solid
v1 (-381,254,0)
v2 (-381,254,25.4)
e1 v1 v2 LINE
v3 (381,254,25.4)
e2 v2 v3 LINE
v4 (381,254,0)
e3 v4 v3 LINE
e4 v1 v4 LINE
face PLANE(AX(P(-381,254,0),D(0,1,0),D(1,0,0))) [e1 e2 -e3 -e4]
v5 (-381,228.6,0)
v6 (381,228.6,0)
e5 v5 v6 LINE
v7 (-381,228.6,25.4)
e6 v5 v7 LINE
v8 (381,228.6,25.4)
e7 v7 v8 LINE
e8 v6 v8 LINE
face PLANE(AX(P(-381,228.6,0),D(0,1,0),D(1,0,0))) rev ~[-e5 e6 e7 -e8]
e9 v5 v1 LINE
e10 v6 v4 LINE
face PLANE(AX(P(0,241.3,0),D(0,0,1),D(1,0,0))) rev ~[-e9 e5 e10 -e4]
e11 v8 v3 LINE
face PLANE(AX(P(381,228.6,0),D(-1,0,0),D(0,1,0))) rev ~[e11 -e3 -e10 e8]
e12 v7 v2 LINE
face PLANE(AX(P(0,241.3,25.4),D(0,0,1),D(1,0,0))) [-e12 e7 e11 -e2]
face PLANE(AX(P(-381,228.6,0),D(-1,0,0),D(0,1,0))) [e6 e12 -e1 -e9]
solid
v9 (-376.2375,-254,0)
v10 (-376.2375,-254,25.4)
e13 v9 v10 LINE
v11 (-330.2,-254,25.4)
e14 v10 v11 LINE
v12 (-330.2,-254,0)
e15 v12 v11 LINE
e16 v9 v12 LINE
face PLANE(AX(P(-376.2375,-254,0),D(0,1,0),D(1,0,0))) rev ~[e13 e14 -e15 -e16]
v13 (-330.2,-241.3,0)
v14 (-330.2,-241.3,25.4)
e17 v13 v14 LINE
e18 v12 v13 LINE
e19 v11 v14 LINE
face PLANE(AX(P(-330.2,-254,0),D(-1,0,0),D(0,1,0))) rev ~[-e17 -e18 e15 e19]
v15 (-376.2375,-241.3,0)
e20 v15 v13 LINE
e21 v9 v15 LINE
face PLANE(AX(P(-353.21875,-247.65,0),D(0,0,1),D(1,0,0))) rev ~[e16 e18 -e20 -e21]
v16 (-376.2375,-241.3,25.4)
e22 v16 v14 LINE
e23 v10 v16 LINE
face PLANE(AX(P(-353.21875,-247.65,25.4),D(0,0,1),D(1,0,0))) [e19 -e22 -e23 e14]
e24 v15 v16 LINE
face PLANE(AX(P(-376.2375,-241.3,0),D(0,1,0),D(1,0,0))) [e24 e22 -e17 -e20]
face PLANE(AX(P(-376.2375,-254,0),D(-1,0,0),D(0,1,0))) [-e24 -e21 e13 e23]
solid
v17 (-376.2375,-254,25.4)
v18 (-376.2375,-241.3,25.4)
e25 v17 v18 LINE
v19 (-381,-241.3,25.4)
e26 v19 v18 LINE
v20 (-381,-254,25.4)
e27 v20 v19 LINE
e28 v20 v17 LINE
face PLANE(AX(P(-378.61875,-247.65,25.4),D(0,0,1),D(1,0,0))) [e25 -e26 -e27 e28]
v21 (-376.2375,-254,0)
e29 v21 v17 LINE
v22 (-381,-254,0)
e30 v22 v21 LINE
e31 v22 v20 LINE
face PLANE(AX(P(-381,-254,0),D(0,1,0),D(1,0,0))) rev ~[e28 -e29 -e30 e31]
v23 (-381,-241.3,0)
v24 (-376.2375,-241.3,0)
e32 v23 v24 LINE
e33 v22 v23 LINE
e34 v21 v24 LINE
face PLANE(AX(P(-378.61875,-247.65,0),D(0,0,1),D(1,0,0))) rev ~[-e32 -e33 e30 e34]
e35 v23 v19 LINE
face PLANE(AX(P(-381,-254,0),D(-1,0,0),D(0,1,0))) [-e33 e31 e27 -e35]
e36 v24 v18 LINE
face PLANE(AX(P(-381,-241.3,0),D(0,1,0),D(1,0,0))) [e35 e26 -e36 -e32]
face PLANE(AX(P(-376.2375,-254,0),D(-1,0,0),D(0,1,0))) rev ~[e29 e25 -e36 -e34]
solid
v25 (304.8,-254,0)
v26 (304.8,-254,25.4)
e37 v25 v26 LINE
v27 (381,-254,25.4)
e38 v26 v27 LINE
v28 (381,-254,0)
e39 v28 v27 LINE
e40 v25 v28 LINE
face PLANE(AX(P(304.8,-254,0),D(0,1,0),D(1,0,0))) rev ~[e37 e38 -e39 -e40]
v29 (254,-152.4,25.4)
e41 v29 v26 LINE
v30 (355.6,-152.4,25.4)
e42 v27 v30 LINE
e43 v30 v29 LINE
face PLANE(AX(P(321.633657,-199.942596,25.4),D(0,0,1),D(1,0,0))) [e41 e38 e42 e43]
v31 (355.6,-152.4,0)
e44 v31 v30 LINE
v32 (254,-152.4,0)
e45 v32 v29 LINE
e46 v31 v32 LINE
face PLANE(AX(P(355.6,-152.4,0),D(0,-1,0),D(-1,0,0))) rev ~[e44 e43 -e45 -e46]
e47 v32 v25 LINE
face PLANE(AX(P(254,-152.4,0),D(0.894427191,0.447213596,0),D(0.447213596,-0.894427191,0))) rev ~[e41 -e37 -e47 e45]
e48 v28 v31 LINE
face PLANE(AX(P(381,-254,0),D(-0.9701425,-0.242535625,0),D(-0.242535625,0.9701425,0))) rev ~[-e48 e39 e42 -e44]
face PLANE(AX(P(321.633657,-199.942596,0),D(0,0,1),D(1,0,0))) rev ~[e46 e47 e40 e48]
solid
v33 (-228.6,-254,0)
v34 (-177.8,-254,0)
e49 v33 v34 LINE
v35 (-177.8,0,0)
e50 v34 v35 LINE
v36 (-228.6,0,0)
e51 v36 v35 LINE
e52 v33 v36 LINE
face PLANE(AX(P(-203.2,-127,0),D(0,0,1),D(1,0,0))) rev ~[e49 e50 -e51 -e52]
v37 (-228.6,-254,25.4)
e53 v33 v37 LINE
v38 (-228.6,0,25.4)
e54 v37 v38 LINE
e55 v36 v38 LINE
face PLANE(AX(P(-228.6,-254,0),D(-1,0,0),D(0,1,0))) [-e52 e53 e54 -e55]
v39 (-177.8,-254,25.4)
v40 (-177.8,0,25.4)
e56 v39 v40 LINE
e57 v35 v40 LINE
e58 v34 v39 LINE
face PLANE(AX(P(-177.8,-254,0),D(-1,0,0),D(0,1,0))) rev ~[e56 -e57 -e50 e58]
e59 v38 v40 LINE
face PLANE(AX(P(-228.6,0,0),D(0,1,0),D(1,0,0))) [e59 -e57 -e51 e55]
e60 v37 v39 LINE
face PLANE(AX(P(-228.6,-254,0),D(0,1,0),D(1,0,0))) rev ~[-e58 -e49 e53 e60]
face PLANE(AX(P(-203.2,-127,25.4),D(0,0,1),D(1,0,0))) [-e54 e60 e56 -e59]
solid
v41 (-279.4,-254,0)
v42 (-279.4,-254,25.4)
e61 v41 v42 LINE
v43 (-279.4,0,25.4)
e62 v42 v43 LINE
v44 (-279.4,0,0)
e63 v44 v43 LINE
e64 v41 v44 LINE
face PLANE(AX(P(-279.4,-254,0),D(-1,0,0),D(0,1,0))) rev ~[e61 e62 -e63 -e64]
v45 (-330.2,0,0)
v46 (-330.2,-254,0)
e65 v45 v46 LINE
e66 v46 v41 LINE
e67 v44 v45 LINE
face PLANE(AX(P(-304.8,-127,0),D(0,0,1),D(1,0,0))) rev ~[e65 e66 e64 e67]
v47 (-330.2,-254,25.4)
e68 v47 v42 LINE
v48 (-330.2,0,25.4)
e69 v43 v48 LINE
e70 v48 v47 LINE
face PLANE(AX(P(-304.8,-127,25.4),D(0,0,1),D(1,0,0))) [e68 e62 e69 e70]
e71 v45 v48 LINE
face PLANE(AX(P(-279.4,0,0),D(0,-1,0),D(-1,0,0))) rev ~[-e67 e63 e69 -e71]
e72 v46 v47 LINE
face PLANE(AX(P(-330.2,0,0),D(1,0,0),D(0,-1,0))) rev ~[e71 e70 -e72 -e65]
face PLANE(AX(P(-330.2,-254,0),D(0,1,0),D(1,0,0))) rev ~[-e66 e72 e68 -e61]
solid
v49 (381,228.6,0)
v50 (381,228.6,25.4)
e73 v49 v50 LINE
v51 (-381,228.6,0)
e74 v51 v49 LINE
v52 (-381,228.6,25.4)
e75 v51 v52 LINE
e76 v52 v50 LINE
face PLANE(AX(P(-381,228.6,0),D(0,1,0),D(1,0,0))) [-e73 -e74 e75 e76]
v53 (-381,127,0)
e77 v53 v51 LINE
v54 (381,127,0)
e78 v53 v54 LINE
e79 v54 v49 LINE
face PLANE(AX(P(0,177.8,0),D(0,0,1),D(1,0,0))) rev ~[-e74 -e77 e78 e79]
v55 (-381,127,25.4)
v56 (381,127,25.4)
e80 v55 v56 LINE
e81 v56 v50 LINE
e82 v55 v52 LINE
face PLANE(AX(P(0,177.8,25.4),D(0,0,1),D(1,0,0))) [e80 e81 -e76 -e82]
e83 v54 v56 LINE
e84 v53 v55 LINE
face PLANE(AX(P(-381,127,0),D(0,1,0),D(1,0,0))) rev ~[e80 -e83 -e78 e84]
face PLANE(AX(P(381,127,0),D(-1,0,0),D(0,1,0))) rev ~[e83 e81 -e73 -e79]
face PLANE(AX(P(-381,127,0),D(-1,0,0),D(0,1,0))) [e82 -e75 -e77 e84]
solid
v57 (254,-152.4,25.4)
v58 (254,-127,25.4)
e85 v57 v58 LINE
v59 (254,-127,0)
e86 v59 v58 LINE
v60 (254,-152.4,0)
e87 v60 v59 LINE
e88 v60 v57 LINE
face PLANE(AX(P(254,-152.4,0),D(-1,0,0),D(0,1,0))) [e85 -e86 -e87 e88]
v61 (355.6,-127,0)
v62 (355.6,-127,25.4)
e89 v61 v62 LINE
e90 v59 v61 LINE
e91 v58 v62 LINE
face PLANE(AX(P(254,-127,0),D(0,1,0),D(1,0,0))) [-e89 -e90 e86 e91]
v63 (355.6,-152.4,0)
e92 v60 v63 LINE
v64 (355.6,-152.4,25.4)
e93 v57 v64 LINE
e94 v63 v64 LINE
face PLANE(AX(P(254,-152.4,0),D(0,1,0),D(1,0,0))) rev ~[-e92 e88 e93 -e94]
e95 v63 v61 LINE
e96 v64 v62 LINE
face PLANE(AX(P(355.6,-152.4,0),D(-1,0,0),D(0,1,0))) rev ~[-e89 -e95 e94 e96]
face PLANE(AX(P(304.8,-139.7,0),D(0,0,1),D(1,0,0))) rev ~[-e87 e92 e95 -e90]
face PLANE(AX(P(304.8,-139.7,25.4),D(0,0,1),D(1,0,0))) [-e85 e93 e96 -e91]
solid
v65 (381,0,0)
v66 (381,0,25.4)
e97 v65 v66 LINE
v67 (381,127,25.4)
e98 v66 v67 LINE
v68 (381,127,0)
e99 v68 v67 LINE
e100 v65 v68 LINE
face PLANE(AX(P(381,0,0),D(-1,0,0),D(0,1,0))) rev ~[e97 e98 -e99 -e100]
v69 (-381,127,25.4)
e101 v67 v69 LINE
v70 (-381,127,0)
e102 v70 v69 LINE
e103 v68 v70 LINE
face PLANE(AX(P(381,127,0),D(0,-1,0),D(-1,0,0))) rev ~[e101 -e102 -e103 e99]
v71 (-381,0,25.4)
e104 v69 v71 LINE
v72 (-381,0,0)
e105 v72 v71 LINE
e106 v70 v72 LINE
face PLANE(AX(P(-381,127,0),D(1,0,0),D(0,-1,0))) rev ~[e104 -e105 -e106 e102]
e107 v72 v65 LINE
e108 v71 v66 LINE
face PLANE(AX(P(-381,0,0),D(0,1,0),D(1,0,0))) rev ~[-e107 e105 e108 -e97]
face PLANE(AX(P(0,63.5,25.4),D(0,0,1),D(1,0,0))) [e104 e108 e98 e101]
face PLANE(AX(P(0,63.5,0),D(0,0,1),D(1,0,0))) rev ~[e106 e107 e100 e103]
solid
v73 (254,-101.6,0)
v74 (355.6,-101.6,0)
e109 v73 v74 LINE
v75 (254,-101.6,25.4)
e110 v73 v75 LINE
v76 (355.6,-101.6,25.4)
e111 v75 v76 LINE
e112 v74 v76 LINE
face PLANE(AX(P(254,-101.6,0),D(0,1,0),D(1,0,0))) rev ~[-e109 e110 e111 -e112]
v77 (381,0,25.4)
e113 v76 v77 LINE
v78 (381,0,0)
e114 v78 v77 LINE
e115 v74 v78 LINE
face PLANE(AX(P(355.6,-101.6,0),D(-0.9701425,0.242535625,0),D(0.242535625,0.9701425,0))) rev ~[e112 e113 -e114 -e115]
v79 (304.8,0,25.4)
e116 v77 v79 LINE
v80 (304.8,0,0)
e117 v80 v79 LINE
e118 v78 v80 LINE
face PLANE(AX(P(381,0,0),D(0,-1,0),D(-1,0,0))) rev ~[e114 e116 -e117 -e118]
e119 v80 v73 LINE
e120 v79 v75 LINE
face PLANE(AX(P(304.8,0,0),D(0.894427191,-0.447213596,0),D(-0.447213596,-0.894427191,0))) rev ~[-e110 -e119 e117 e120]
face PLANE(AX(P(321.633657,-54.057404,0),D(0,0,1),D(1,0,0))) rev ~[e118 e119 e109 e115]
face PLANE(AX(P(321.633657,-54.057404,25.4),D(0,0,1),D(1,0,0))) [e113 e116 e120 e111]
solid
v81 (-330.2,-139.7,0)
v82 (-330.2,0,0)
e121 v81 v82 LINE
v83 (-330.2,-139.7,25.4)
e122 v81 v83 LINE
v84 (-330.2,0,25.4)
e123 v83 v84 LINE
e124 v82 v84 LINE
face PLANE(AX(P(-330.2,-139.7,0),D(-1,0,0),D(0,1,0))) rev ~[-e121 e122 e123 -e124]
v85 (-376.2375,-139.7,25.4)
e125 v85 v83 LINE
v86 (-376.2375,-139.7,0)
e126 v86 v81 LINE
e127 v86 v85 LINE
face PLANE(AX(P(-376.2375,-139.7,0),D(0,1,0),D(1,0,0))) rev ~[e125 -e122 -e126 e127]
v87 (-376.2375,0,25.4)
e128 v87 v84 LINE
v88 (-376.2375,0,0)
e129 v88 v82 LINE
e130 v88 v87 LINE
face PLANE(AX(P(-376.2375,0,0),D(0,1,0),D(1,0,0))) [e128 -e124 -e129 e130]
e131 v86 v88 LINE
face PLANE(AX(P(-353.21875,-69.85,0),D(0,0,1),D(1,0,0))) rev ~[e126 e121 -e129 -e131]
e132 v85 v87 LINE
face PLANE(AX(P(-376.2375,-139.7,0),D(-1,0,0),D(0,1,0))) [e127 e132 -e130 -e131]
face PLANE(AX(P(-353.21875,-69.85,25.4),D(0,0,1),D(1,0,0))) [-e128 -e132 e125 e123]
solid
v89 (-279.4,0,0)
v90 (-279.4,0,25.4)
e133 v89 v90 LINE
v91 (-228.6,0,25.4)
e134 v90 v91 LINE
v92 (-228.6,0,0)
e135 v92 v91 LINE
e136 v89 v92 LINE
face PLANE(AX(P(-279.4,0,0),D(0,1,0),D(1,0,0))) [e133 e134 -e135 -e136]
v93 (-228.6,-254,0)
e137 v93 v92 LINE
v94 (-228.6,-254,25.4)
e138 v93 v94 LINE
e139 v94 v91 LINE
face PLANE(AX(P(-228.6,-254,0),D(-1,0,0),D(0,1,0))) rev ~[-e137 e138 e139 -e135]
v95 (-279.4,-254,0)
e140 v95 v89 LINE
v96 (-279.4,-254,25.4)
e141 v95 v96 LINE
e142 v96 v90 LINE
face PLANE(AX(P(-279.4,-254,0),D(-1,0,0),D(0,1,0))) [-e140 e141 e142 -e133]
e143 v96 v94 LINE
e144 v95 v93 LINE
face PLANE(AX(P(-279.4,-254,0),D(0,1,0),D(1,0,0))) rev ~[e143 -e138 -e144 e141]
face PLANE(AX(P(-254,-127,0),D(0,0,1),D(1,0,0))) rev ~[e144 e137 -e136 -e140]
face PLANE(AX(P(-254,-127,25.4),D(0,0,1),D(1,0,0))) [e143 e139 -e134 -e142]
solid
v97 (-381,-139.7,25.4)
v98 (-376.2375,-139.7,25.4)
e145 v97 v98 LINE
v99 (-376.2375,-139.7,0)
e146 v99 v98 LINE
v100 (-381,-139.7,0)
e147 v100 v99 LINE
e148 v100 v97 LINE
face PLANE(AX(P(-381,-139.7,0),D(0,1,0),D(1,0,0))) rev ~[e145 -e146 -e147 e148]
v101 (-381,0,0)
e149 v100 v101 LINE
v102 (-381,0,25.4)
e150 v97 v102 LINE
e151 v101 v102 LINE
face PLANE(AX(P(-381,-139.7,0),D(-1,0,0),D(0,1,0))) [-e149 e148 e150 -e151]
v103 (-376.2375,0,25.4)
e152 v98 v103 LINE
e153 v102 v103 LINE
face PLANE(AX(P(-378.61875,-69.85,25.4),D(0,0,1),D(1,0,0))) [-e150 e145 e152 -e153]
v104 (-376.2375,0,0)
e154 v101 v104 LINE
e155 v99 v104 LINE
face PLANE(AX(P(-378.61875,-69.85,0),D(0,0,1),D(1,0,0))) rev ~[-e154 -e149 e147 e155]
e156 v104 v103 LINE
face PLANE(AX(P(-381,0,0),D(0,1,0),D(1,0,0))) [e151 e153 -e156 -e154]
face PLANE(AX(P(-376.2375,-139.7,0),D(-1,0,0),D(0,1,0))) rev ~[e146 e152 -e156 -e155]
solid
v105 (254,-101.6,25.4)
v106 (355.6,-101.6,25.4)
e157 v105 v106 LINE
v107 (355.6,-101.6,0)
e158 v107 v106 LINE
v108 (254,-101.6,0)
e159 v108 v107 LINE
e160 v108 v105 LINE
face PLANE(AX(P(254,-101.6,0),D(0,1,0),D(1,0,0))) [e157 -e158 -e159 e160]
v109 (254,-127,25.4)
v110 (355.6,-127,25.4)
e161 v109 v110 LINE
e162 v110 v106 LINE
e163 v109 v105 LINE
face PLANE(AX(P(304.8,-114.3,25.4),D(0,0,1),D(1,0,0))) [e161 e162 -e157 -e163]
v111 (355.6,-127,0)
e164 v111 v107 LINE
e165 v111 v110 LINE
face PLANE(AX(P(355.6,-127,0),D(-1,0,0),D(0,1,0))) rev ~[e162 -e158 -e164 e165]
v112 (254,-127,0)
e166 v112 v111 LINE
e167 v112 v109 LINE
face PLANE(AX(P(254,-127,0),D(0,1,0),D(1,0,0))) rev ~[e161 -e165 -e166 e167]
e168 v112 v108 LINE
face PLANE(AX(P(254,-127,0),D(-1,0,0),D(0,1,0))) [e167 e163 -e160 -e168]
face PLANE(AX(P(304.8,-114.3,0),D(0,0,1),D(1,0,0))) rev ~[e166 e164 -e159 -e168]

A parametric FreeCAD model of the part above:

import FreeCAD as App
import Part
import Sketcher

V = App.Vector
Q = App.Units.Quantity


def add_polygon(sketch, points):
    """Adds a closed chain of lines whose ends are joined by coincident constraints."""
    first, n = sketch.GeometryCount, len(points)
    for a, b in zip(points, points[1:] + points[:1]):
        sketch.addGeometry(Part.LineSegment(App.Vector(*a, 0), App.Vector(*b, 0)), False)
    for i in range(n):
        sketch.addConstraint(Sketcher.Constraint("Coincident", first + i, 2, first + (i + 1) % n, 1))

doc = App.newDocument("Part")
params = doc.addObject("Spreadsheet::Sheet", "Params")
for row, (alias, value) in enumerate([
    ("sketch1_width", "3 in"),
    ("sketch1_width2", "4 in"),
    ("sketch1_width3", "30 in"),
    ("sketch1_height", "1 in"),
    ("sketch1_height2", "5 in"),
    ("pad1_length", "1 in"),
    ("sketch2_width", "3 in"),
    ("sketch2_width2", "4 in"),
    ("sketch2_width3", "30 in"),
    ("sketch2_width4", "2 in"),
    ("sketch2_height", "10 in"),
    ("pad2_length", "1 in"),
    ("sketch3_width", "2 in"),
    ("sketch3_height", "10 in"),
    ("sketch3_height2", "5.5 in"),
    ("sketch3_width2", "1.8125 in"),
    ("pad3_length", "1 in"),
], start=1):
    params.set(f"A{row}", alias)
    params.set(f"B{row}", "=" + value)
    params.setAlias(f"B{row}", alias)

body = doc.addObject("PartDesign::Body", "Body")
body.AllowCompound = True

# Sketch on XY plane
sketch1 = doc.addObject("Sketcher::SketchObject", "Sketch")
body.addObject(sketch1)
sketch1.AttachmentSupport = (doc.XY_Plane, [""])
sketch1.MapMode = "FlatFace"
add_polygon(sketch1, [(304.8, -254), (381, -254), (355.6, -152.4), (254, -152.4)])  # lines 0-3
add_polygon(sketch1, [(-381, 254), (-381, 228.6), (381, 228.6), (381, 254)])  # lines 4-7
add_polygon(sketch1, [(381, 127), (-381, 127), (-381, 0), (381, 0)])  # lines 8-11
add_polygon(sketch1, [(254, -101.6), (254, -127), (355.6, -127), (355.6, -101.6)])  # lines 12-15
add_polygon(sketch1, [(-376.2375, -241.3), (-376.2375, -254), (-330.2, -254), (-330.2, -241.3)])  # lines 16-19
sketch1.addConstraint([
    Sketcher.Constraint("Horizontal", 0),
    Sketcher.Constraint("Horizontal", 2),
    Sketcher.Constraint("Vertical", 4),
    Sketcher.Constraint("Horizontal", 5),
    Sketcher.Constraint("Vertical", 6),
    Sketcher.Constraint("Horizontal", 7),
    Sketcher.Constraint("Horizontal", 8),
    Sketcher.Constraint("Vertical", 9),
    Sketcher.Constraint("Horizontal", 10),
    Sketcher.Constraint("Vertical", 11),
    Sketcher.Constraint("Vertical", 12),
    Sketcher.Constraint("Horizontal", 13),
    Sketcher.Constraint("Vertical", 14),
    Sketcher.Constraint("Horizontal", 15),
    Sketcher.Constraint("Vertical", 16),
    Sketcher.Constraint("Horizontal", 17),
    Sketcher.Constraint("Vertical", 18),
    Sketcher.Constraint("Horizontal", 19),
    Sketcher.Constraint("Symmetric", 0, 2, 7, 2, -1, 1),
    Sketcher.Constraint("Symmetric", 9, 2, 10, 2, -1, 1),
    Sketcher.Constraint("Horizontal", 3, 2, 16, 2),
    Sketcher.Constraint("Vertical", 0, 2, 5, 2),
    Sketcher.Constraint("Vertical", 7, 2, 8, 2),
    Sketcher.Constraint("Vertical", 2, 2, 12, 2),
    Sketcher.Constraint("Vertical", 1, 2, 13, 2),
    Sketcher.Constraint("Equal", 6, 12),
    Sketcher.Constraint("DistanceX", 0, 1, 0, 2, Q("3 in")),
    Sketcher.Constraint("DistanceX", 2, 2, 2, 1, Q("4 in")),
    Sketcher.Constraint("DistanceX", 5, 1, 5, 2, Q("30 in")),
    Sketcher.Constraint("DistanceY", 4, 2, 4, 1, Q("1 in")),
    Sketcher.Constraint("DistanceY", 9, 2, 9, 1, Q("5 in")),
    Sketcher.Constraint("DistanceY", 16, 2, 16, 1, Q("0.5 in")),
    Sketcher.Constraint("DistanceY", 0, 2, -1, 1, Q("10 in")),
    Sketcher.Constraint("DistanceX", -1, 1, 1, 2, Q("14 in")),
    Sketcher.Constraint("DistanceY", 1, 2, -1, 1, Q("6 in")),
    Sketcher.Constraint("DistanceY", 12, 2, -1, 1, Q("5 in")),
    Sketcher.Constraint("DistanceX", 17, 2, -1, 1, Q("13 in")),
    Sketcher.Constraint("DistanceX", 17, 1, 17, 2, Q("1.8125 in")),
])
sketch1.setExpression("Constraints[46]", "Params.sketch1_width")
sketch1.setExpression("Constraints[47]", "Params.sketch1_width2")
sketch1.setExpression("Constraints[48]", "Params.sketch1_width3")
sketch1.setExpression("Constraints[49]", "Params.sketch1_height")
sketch1.setExpression("Constraints[50]", "Params.sketch1_height2")
pad1 = doc.addObject("PartDesign::Pad", "Pad")
body.addObject(pad1)
pad1.Profile = sketch1
pad1.setExpression("Length", "Params.pad1_length")
body2 = doc.addObject("PartDesign::Body", "Body001")
body2.AllowCompound = True

# Sketch on XY plane
sketch2 = doc.addObject("Sketcher::SketchObject", "Sketch001")
body2.addObject(sketch2)
sketch2.AttachmentSupport = (doc.getObject("XY_Plane001"), [""])
sketch2.MapMode = "FlatFace"
add_polygon(sketch2, [(355.6, -101.6), (381, 0), (304.8, 0), (254, -101.6)])  # lines 0-3
add_polygon(sketch2, [(-381, 228.6), (-381, 127), (381, 127), (381, 228.6)])  # lines 4-7
add_polygon(sketch2, [(-228.6, 0), (-228.6, -254), (-177.8, -254), (-177.8, 0)])  # lines 8-11
add_polygon(sketch2, [(-279.4, 0), (-330.2, 0), (-330.2, -254), (-279.4, -254)])  # lines 12-15
add_polygon(sketch2, [(-381, 0), (-381, -139.7), (-376.2375, -139.7), (-376.2375, 0)])  # lines 16-19
add_polygon(sketch2, [(-381, -241.3), (-381, -254), (-376.2375, -254), (-376.2375, -241.3)])  # lines 20-23
add_polygon(sketch2, [(254, -127), (254, -152.4), (355.6, -152.4), (355.6, -127)])  # lines 24-27
sketch2.addConstraint([
    Sketcher.Constraint("Horizontal", 1),
    Sketcher.Constraint("Horizontal", 3),
    Sketcher.Constraint("Vertical", 4),
    Sketcher.Constraint("Horizontal", 5),
    Sketcher.Constraint("Vertical", 6),
    Sketcher.Constraint("Horizontal", 7),
    Sketcher.Constraint("Vertical", 8),
    Sketcher.Constraint("Horizontal", 9),
    Sketcher.Constraint("Vertical", 10),
    Sketcher.Constraint("Horizontal", 11),
    Sketcher.Constraint("Horizontal", 12),
    Sketcher.Constraint("Vertical", 13),
    Sketcher.Constraint("Horizontal", 14),
    Sketcher.Constraint("Vertical", 15),
    Sketcher.Constraint("Vertical", 16),
    Sketcher.Constraint("Horizontal", 17),
    Sketcher.Constraint("Vertical", 18),
    Sketcher.Constraint("Horizontal", 19),
    Sketcher.Constraint("Vertical", 20),
    Sketcher.Constraint("Horizontal", 21),
    Sketcher.Constraint("Vertical", 22),
    Sketcher.Constraint("Horizontal", 23),
    Sketcher.Constraint("Vertical", 24),
    Sketcher.Constraint("Horizontal", 25),
    Sketcher.Constraint("Vertical", 26),
    Sketcher.Constraint("Horizontal", 27),
    Sketcher.Constraint("Symmetric", 0, 2, 19, 2, -1, 1),
    Sketcher.Constraint("PointOnObject", 0, 2, -1),
    Sketcher.Constraint("PointOnObject", 10, 2, -1),
    Sketcher.Constraint("PointOnObject", 12, 2, -1),
    Sketcher.Constraint("Horizontal", 9, 2, 13, 2),
    Sketcher.Constraint("Horizontal", 14, 2, 20, 2),
    Sketcher.Constraint("Vertical", 0, 2, 5, 2),
    Sketcher.Constraint("Vertical", 7, 2, 16, 2),
    Sketcher.Constraint("Vertical", 19, 2, 20, 2),
    Sketcher.Constraint("Vertical", 18, 2, 21, 2),
    Sketcher.Constraint("Vertical", 2, 2, 24, 2),
    Sketcher.Constraint("Vertical", 3, 2, 25, 2),
    Sketcher.Constraint("Equal", 11, 12),
    Sketcher.Constraint("Equal", 27, 4),
    Sketcher.Constraint("DistanceX", 1, 2, 1, 1, Q("3 in")),
    Sketcher.Constraint("DistanceX", 3, 1, 3, 2, Q("4 in")),
    Sketcher.Constraint("DistanceX", 5, 1, 5, 2, Q("30 in")),
    Sketcher.Constraint("DistanceX", 9, 1, 9, 2, Q("2 in")),
    Sketcher.Constraint("DistanceY", 8, 2, 8, 1, Q("10 in")),
    Sketcher.Constraint("DistanceY", 24, 2, 24, 1, Q("1 in")),
    Sketcher.Constraint("DistanceY", 16, 2, 16, 1, Q("5.5 in")),
    Sketcher.Constraint("DistanceY", 20, 2, 20, 1, Q("0.5 in")),
    Sketcher.Constraint("DistanceX", -1, 1, 2, 2, Q("10 in")),
    Sketcher.Constraint("DistanceY", 2, 2, -1, 1, Q("4 in")),
    Sketcher.Constraint("DistanceY", -1, 1, 4, 2, Q("5 in")),
    Sketcher.Constraint("DistanceX", 8, 2, -1, 1, Q("9 in")),
    Sketcher.Constraint("DistanceX", 12, 2, -1, 1, Q("13 in")),
    Sketcher.Constraint("DistanceY", 24, 2, -1, 1, Q("6 in")),
    Sketcher.Constraint("DistanceX", 17, 1, 17, 2, Q("0.1875 in")),
])
sketch2.setExpression("Constraints[68]", "Params.sketch2_width")
sketch2.setExpression("Constraints[69]", "Params.sketch2_width2")
sketch2.setExpression("Constraints[70]", "Params.sketch2_width3")
sketch2.setExpression("Constraints[71]", "Params.sketch2_width4")
sketch2.setExpression("Constraints[72]", "Params.sketch2_height")
pad2 = doc.addObject("PartDesign::Pad", "Pad001")
body2.addObject(pad2)
pad2.Profile = sketch2
pad2.setExpression("Length", "Params.pad2_length")
body3 = doc.addObject("PartDesign::Body", "Body002")
body3.AllowCompound = True

# Sketch on XY plane
sketch3 = doc.addObject("Sketcher::SketchObject", "Sketch002")
body3.addObject(sketch3)
sketch3.AttachmentSupport = (doc.getObject("XY_Plane002"), [""])
sketch3.MapMode = "FlatFace"
add_polygon(sketch3, [(-279.4, 0), (-279.4, -254), (-228.6, -254), (-228.6, 0)])  # lines 0-3
add_polygon(sketch3, [(-376.2375, 0), (-376.2375, -139.7), (-330.2, -139.7), (-330.2, 0)])  # lines 4-7
sketch3.addConstraint([
    Sketcher.Constraint("Vertical", 0),
    Sketcher.Constraint("Horizontal", 1),
    Sketcher.Constraint("Vertical", 2),
    Sketcher.Constraint("Horizontal", 3),
    Sketcher.Constraint("Vertical", 4),
    Sketcher.Constraint("Horizontal", 5),
    Sketcher.Constraint("Vertical", 6),
    Sketcher.Constraint("Horizontal", 7),
    Sketcher.Constraint("PointOnObject", 2, 2, -1),
    Sketcher.Constraint("PointOnObject", 6, 2, -1),
    Sketcher.Constraint("DistanceX", 1, 1, 1, 2, Q("2 in")),
    Sketcher.Constraint("DistanceY", 0, 2, 0, 1, Q("10 in")),
    Sketcher.Constraint("DistanceY", 4, 2, 4, 1, Q("5.5 in")),
    Sketcher.Constraint("DistanceX", 0, 2, -1, 1, Q("11 in")),
    Sketcher.Constraint("DistanceX", 5, 2, -1, 1, Q("13 in")),
    Sketcher.Constraint("DistanceX", 5, 1, 5, 2, Q("1.8125 in")),
])
sketch3.setExpression("Constraints[18]", "Params.sketch3_width")
sketch3.setExpression("Constraints[19]", "Params.sketch3_height")
sketch3.setExpression("Constraints[20]", "Params.sketch3_height2")
sketch3.setExpression("Constraints[23]", "Params.sketch3_width2")
pad3 = doc.addObject("PartDesign::Pad", "Pad002")
body3.addObject(pad3)
pad3.Profile = sketch3
pad3.setExpression("Length", "Params.pad3_length")

doc.recompute()
